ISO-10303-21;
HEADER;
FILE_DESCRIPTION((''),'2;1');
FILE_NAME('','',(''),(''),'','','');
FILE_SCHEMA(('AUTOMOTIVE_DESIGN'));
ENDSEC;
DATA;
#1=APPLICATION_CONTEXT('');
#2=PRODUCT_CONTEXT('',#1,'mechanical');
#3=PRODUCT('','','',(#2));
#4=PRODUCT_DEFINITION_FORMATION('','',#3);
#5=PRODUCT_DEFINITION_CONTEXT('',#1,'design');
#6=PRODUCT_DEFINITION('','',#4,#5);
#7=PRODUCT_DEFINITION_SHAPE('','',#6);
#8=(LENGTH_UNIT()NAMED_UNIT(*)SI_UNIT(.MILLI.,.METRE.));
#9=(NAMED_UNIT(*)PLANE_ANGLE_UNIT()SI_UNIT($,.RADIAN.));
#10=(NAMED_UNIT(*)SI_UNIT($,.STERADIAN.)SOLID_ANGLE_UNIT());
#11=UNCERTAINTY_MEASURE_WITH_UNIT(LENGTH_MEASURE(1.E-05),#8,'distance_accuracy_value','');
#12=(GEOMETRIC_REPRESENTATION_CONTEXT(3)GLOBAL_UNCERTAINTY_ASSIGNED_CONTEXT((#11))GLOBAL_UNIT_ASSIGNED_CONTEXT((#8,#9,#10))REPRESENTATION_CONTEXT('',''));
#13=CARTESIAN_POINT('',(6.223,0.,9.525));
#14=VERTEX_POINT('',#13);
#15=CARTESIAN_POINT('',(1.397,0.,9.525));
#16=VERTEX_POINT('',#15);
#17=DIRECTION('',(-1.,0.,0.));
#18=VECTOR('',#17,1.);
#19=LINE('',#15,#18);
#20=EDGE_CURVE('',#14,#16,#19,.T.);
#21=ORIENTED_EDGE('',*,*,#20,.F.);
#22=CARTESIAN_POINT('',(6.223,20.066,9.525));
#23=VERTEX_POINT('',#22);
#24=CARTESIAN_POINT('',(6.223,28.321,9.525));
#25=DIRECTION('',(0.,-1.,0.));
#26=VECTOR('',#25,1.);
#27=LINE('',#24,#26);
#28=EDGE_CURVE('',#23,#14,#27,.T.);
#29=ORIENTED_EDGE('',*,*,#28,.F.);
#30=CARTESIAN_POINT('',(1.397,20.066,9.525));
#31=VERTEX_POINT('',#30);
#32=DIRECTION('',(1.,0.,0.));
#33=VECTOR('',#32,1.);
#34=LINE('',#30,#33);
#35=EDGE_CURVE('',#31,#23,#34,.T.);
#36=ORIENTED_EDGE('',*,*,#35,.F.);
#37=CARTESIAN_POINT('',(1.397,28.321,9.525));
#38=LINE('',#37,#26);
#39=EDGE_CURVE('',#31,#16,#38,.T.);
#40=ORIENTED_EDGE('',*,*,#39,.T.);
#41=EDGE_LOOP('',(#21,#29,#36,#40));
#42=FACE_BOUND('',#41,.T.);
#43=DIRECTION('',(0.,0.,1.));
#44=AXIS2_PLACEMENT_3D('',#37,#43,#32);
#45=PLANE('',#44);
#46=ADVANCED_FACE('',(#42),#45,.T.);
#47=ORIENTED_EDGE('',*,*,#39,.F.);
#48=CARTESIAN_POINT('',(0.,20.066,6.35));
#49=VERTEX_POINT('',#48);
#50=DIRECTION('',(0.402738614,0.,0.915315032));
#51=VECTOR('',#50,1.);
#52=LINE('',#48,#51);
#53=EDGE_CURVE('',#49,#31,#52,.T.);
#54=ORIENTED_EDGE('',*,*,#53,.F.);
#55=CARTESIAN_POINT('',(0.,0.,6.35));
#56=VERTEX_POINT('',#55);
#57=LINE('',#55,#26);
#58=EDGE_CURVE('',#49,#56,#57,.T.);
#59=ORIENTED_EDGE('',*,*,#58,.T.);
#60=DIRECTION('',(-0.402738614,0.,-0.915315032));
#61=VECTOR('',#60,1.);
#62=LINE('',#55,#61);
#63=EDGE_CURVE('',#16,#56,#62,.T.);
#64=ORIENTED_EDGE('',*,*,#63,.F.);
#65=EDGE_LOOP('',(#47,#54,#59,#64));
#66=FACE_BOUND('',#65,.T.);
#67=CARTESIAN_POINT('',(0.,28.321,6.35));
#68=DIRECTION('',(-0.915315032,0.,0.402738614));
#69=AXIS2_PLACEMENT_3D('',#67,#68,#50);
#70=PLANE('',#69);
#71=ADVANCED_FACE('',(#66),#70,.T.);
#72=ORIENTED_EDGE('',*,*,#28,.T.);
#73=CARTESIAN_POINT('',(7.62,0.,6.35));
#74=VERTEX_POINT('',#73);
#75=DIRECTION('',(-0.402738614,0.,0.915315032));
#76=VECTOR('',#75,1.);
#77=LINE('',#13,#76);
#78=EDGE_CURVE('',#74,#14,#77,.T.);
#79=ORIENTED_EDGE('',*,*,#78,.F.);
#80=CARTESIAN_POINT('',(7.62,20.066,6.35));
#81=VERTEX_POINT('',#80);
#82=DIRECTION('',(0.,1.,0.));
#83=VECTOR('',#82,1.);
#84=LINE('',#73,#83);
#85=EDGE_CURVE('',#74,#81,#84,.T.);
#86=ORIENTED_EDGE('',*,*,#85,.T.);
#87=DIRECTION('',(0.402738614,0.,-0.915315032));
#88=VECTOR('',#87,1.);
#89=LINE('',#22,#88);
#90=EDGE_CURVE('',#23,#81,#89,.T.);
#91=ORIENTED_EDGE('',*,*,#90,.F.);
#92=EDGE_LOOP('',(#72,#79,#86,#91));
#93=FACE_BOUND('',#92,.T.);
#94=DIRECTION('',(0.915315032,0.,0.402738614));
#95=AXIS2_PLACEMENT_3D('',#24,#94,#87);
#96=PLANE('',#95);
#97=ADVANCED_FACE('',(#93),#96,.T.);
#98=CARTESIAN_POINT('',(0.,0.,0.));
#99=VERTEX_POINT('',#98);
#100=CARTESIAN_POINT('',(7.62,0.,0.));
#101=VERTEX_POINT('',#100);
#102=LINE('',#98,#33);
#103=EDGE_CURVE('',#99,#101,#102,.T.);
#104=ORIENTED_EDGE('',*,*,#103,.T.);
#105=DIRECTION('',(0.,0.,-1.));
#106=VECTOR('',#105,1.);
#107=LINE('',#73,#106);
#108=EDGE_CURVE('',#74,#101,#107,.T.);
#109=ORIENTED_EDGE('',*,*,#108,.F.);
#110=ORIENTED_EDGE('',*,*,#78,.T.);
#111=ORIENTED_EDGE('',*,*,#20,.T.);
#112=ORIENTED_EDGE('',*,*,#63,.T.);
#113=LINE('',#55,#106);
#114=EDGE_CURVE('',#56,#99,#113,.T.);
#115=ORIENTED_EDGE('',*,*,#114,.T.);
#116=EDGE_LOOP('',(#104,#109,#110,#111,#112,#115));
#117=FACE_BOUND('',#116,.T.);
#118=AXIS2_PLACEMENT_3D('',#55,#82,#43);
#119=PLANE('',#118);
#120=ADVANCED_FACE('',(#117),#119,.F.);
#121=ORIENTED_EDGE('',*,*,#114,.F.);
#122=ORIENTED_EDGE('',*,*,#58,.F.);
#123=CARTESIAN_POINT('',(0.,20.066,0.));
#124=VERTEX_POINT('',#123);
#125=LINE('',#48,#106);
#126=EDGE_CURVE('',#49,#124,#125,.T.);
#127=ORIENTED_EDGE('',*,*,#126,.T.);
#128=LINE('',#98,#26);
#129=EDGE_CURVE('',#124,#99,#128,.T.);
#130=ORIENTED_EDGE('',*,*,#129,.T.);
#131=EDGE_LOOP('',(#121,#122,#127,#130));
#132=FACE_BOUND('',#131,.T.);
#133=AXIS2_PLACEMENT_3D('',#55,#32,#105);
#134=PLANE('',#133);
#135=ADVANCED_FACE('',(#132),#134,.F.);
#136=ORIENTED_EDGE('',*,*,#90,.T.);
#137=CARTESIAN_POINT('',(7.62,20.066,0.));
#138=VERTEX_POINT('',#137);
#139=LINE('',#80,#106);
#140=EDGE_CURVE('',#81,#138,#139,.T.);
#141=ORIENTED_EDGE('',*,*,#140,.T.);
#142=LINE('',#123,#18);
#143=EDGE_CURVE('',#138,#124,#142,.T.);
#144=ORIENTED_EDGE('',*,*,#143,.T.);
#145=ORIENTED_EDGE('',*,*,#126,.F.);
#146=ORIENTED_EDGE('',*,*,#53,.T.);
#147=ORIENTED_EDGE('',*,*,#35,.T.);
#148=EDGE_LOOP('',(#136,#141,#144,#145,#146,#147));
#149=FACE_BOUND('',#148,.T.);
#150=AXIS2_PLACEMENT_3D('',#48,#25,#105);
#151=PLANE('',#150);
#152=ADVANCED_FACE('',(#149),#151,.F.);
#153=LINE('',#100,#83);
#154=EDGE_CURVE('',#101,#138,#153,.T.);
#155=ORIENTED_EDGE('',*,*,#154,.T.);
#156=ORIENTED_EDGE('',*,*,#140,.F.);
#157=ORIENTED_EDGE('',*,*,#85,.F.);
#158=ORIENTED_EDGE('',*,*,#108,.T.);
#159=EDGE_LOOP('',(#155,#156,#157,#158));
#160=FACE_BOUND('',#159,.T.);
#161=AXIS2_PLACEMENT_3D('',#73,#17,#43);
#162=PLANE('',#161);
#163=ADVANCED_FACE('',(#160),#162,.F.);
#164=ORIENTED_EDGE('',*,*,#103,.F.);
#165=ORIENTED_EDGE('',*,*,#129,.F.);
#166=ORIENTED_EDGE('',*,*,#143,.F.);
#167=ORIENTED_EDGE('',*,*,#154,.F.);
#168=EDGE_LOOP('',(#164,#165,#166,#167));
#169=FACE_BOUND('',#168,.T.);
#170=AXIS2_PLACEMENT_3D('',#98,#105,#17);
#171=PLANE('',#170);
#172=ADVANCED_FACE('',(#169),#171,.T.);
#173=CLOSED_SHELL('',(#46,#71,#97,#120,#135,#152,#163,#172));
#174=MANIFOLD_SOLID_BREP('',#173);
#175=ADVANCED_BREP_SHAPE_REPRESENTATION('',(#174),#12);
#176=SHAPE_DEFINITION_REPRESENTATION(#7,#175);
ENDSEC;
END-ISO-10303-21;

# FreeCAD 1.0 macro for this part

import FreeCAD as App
import Part
import Sketcher

V = App.Vector
Q = App.Units.Quantity

doc = App.newDocument("Part")
params = doc.addObject("Spreadsheet::Sheet", "Params")
for row, (alias, value) in enumerate([
    ("sketch1_width", "0.3 in"),
    ("sketch1_height", "0.79 in"),
    ("pad1_length", "0.25 in"),
    ("sketch2_width", "0.3 in"),
    ("sketch2_width2", "0.19 in"),
    ("pad2_length", "0.79 in"),
], start=1):
    params.set(f"A{row}", alias)
    params.set(f"B{row}", "=" + value)
    params.setAlias(f"B{row}", alias)

body = doc.addObject("PartDesign::Body", "Body")

sketch1 = body.newObject("Sketcher::SketchObject", "Sketch")
sketch1.AttachmentSupport = (doc.getObject("XY_Plane"), [""])
sketch1.MapMode = "FlatFace"
sketch1.addGeometry(Part.LineSegment(V(0, 20.066, 0), V(0, 0, 0)), False)
sketch1.addGeometry(Part.LineSegment(V(0, 0, 0), V(7.62, 0, 0)), False)
sketch1.addGeometry(Part.LineSegment(V(7.62, 0, 0), V(7.62, 20.066, 0)), False)
sketch1.addGeometry(Part.LineSegment(V(7.62, 20.066, 0), V(0, 20.066, 0)), False)
sketch1.addConstraint(Sketcher.Constraint("Coincident", 0, 2, 1, 1))
sketch1.addConstraint(Sketcher.Constraint("Coincident", 1, 2, 2, 1))
sketch1.addConstraint(Sketcher.Constraint("Coincident", 2, 2, 3, 1))
sketch1.addConstraint(Sketcher.Constraint("Coincident", 3, 2, 0, 1))
sketch1.addConstraint(Sketcher.Constraint("Vertical", 0))
sketch1.addConstraint(Sketcher.Constraint("Horizontal", 1))
sketch1.addConstraint(Sketcher.Constraint("Vertical", 2))
sketch1.addConstraint(Sketcher.Constraint("Horizontal", 3))
sketch1.addConstraint(Sketcher.Constraint("Coincident", 0, 2, -1, 1))
sketch1.addConstraint(Sketcher.Constraint("DistanceX", 1, 1, 1, 2, Q("0.3 in")))
sketch1.addConstraint(Sketcher.Constraint("DistanceY", 0, 2, 0, 1, Q("0.79 in")))
sketch1.setExpression("Constraints[9]", "Params.sketch1_width")
sketch1.setExpression("Constraints[10]", "Params.sketch1_height")
pad1 = body.newObject("PartDesign::Pad", "Pad")
pad1.Profile = sketch1
pad1.setExpression("Length", "Params.pad1_length")

sketch2 = body.newObject("Sketcher::SketchObject", "Sketch001")
sketch2.AttachmentSupport = (doc.getObject("XZ_Plane"), [""])
sketch2.MapMode = "FlatFace"
sketch2.addGeometry(Part.LineSegment(V(1.397, 9.525, 0), V(0, 6.35, 0)), False)
sketch2.addGeometry(Part.LineSegment(V(0, 6.35, 0), V(7.62, 6.35, 0)), False)
sketch2.addGeometry(Part.LineSegment(V(7.62, 6.35, 0), V(6.223, 9.525, 0)), False)
sketch2.addGeometry(Part.LineSegment(V(6.223, 9.525, 0), V(1.397, 9.525, 0)), False)
sketch2.addConstraint(Sketcher.Constraint("Coincident", 0, 2, 1, 1))
sketch2.addConstraint(Sketcher.Constraint("Coincident", 1, 2, 2, 1))
sketch2.addConstraint(Sketcher.Constraint("Coincident", 2, 2, 3, 1))
sketch2.addConstraint(Sketcher.Constraint("Coincident", 3, 2, 0, 1))
sketch2.addConstraint(Sketcher.Constraint("Horizontal", 1))
sketch2.addConstraint(Sketcher.Constraint("Horizontal", 3))
sketch2.addConstraint(Sketcher.Constraint("PointOnObject", 0, 2, -2))
sketch2.addConstraint(Sketcher.Constraint("Equal", 0, 2))
sketch2.addConstraint(Sketcher.Constraint("DistanceX", 1, 1, 1, 2, Q("0.3 in")))
sketch2.addConstraint(Sketcher.Constraint("DistanceX", 3, 2, 3, 1, Q("0.19 in")))
sketch2.addConstraint(Sketcher.Constraint("DistanceY", -1, 1, 0, 2, Q("0.25 in")))
sketch2.addConstraint(Sketcher.Constraint("DistanceY", -1, 1, 2, 2, Q("0.375 in")))
sketch2.setExpression("Constraints[8]", "Params.sketch2_width")
sketch2.setExpression("Constraints[9]", "Params.sketch2_width2")
pad2 = body.newObject("PartDesign::Pad", "Pad001")
pad2.Profile = sketch2
pad2.setExpression("Length", "Params.pad2_length")
pad2.Reversed = True

doc.recompute()
